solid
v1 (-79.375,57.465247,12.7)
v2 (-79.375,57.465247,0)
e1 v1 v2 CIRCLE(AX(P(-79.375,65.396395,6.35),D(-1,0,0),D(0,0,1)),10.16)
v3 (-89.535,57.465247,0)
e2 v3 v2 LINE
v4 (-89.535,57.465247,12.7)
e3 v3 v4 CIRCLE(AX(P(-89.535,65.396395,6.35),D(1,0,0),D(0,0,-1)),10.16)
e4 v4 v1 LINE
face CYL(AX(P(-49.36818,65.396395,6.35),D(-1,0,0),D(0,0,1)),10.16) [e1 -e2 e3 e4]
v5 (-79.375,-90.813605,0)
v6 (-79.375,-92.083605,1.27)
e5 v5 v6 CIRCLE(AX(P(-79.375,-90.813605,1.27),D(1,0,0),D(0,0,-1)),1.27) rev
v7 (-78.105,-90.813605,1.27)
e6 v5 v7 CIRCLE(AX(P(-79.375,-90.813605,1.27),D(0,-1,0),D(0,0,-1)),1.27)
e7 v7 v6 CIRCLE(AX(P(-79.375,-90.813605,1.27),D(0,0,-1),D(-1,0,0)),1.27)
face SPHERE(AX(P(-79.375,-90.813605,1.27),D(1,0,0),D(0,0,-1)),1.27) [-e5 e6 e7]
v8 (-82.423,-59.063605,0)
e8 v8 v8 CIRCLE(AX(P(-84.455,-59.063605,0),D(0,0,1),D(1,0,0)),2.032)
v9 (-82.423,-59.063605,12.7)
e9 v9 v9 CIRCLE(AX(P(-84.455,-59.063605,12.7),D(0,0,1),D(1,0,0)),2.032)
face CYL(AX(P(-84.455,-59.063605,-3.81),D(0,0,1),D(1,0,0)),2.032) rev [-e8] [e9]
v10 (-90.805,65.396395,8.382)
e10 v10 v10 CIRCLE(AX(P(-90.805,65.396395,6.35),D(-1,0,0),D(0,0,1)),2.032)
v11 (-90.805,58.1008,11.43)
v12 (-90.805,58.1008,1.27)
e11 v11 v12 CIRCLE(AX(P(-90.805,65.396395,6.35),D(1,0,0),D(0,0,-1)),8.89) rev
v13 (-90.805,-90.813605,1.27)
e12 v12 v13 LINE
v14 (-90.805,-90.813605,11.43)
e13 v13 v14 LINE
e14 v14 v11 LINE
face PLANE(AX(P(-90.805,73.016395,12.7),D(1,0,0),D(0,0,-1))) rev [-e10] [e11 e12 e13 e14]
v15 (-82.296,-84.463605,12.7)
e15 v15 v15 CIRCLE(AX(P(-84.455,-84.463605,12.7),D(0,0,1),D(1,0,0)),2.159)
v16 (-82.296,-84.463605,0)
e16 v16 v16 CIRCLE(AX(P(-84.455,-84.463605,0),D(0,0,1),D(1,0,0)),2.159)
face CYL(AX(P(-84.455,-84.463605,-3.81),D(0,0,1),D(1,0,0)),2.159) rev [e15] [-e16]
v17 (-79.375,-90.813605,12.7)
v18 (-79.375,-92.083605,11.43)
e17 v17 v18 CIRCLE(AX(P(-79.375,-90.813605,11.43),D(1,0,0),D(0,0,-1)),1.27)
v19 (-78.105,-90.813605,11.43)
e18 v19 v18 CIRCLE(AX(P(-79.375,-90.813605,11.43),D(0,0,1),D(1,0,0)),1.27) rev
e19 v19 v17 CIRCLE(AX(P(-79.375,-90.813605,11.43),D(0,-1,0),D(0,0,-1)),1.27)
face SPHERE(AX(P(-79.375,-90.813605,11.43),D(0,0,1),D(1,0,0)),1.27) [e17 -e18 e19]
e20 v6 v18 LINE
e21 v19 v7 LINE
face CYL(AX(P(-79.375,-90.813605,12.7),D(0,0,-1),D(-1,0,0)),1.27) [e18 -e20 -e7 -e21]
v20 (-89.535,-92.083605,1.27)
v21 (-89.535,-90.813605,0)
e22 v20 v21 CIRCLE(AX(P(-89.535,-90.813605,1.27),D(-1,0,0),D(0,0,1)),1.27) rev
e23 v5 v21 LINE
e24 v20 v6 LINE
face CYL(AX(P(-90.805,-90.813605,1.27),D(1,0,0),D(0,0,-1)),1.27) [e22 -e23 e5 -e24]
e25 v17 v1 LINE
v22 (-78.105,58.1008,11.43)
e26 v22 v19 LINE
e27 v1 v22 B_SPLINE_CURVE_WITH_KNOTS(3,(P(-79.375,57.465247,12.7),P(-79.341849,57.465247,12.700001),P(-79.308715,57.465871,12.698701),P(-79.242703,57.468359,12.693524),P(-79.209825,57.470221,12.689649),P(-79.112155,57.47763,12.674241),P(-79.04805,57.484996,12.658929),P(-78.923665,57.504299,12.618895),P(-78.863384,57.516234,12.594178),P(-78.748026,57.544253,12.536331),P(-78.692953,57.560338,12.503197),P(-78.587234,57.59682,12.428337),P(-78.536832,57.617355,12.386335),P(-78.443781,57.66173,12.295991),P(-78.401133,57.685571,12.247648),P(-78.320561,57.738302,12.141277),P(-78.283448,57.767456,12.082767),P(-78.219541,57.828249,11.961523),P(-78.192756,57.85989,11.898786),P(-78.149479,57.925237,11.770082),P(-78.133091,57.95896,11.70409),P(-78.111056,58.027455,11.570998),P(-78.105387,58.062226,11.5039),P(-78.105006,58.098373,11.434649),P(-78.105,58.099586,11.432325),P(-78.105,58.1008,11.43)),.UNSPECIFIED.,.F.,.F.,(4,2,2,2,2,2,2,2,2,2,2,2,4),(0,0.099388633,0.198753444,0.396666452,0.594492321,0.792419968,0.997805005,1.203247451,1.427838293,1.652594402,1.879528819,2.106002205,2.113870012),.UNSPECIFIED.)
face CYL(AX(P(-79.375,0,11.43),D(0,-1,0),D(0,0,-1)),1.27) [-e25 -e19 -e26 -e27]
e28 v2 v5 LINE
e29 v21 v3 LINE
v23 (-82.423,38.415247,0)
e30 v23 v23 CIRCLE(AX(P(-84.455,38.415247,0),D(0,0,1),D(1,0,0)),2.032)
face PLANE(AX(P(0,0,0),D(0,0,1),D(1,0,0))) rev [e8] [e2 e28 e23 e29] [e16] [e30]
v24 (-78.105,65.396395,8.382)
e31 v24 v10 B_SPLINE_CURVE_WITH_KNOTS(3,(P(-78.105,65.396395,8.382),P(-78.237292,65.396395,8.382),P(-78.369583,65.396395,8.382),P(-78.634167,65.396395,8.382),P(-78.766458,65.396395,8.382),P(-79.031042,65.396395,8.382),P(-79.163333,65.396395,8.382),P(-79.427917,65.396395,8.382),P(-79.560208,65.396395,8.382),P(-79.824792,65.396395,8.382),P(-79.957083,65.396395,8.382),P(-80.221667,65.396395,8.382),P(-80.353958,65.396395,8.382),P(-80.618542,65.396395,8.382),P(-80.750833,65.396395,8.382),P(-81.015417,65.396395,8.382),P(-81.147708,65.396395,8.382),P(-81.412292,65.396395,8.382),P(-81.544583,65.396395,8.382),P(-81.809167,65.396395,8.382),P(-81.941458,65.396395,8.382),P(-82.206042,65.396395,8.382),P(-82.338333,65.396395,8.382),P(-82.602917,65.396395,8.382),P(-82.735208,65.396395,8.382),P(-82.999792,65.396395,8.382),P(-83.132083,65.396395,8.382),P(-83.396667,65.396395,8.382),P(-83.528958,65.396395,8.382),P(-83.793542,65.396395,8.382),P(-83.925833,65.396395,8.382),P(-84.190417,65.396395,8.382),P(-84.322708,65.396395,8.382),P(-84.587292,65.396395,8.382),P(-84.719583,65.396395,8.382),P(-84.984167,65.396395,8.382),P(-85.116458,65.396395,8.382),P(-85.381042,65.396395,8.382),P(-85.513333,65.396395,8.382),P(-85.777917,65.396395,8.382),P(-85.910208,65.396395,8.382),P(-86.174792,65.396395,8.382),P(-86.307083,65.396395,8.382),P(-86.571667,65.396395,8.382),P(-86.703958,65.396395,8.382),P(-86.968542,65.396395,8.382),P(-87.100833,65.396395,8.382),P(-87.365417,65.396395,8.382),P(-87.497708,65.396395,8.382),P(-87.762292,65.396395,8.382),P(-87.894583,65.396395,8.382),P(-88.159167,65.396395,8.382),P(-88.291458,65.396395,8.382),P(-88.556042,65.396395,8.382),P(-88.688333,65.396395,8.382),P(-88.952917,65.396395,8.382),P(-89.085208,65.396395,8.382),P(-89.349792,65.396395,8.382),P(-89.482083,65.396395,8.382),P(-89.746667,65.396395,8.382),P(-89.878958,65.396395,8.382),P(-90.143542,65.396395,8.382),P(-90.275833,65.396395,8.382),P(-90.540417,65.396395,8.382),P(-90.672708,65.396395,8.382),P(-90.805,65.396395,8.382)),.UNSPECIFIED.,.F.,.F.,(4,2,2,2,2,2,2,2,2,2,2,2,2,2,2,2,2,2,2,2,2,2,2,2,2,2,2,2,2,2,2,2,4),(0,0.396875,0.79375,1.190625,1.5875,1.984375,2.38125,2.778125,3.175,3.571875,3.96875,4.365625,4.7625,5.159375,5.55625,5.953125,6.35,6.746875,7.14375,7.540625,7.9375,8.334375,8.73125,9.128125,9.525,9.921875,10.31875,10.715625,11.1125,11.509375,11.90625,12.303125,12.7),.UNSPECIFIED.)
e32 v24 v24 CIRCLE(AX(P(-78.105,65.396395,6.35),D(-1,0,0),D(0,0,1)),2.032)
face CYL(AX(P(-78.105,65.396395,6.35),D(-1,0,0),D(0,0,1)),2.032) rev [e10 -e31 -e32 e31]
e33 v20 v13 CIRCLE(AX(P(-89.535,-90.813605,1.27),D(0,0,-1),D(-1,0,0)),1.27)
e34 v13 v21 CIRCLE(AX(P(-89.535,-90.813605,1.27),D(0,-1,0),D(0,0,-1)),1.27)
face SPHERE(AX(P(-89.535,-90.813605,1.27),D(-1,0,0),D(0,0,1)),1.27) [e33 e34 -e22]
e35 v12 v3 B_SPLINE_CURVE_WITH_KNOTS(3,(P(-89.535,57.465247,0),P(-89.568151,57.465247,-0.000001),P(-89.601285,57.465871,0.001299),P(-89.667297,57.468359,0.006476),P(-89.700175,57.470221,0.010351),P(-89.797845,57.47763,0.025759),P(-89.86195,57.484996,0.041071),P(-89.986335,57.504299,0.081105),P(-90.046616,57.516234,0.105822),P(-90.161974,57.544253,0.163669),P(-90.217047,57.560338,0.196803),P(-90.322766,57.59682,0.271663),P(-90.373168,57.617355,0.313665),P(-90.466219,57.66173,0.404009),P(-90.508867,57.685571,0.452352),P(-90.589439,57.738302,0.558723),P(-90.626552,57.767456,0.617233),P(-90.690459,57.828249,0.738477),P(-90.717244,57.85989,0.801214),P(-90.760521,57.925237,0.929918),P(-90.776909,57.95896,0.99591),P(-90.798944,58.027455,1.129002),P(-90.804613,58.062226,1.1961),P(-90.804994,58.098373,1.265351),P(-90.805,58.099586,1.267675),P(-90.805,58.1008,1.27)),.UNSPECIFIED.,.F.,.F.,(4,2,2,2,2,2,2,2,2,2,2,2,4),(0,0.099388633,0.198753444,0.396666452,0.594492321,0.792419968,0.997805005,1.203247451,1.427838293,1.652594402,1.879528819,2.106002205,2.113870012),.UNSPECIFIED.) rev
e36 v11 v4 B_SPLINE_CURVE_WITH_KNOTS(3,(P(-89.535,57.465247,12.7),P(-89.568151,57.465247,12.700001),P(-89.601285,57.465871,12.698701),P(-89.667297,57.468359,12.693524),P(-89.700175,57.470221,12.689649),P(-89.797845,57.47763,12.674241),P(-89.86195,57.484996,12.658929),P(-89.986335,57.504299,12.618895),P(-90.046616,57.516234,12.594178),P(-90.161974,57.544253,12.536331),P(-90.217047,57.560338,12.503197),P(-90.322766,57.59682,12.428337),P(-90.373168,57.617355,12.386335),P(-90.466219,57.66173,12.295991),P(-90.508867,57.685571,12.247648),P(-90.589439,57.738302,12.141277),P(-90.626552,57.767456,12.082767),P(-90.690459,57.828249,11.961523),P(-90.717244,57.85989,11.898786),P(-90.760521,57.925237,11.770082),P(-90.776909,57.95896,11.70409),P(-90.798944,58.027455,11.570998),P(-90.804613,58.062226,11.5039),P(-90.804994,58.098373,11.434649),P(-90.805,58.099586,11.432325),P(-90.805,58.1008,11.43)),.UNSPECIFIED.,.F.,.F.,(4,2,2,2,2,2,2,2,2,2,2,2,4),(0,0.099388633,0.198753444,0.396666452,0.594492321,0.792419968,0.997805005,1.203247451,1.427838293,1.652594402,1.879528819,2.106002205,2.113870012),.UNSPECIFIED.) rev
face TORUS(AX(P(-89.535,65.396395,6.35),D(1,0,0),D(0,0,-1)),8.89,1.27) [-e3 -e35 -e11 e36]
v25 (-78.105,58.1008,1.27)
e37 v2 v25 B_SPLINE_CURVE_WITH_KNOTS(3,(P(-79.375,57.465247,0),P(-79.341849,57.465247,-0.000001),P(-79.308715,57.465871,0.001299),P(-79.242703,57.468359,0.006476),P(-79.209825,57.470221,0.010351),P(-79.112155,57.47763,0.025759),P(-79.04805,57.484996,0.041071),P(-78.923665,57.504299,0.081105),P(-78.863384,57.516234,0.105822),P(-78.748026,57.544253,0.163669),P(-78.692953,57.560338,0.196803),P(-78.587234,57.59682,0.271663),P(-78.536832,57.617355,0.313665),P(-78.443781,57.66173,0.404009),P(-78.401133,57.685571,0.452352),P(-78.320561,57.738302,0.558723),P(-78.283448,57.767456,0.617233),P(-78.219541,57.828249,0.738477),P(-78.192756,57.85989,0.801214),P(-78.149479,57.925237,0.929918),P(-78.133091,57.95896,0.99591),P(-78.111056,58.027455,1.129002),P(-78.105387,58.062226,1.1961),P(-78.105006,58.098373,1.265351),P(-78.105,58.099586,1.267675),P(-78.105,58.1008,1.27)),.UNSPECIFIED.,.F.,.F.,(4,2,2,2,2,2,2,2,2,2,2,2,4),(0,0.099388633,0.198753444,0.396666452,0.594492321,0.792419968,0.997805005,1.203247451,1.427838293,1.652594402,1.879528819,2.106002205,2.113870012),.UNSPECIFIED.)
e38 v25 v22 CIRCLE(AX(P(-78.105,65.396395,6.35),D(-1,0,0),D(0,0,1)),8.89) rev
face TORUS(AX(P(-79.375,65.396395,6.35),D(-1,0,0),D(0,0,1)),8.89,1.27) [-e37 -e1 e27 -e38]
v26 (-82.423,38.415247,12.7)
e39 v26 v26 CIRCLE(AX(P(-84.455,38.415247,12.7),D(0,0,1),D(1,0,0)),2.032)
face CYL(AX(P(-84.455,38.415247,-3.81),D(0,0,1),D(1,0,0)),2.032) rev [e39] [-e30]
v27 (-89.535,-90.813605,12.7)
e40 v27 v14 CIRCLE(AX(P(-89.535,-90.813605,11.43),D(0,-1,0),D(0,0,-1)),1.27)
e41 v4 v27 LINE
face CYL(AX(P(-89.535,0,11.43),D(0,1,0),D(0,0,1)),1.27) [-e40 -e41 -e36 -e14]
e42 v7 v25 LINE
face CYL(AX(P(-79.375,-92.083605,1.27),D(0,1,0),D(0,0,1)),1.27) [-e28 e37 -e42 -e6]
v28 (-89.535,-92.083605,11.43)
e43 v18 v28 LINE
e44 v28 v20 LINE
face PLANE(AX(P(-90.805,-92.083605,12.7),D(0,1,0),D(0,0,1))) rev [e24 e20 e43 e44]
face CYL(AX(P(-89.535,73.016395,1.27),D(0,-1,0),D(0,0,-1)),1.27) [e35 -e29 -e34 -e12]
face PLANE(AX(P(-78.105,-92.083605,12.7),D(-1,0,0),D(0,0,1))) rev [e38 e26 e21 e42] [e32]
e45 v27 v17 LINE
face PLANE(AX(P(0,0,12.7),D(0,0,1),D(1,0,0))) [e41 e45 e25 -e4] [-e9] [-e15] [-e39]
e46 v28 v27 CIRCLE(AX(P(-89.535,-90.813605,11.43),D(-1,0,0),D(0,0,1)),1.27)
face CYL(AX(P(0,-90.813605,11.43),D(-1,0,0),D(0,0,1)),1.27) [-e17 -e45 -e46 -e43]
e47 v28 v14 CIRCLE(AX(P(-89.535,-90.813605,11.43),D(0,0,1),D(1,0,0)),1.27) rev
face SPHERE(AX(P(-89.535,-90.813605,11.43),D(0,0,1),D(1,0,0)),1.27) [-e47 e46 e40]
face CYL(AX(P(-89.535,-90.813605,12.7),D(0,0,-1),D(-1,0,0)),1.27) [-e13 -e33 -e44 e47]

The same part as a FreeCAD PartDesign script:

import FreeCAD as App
import Part
import Sketcher
Q = App.Units.Quantity


def edges_at(feature, points):
    """Names of the edges that pass closest to the given points."""
    edges = feature.Shape.Edges
    near = lambda p: min(range(len(edges)), key=lambda i: edges[i].distToShape(Part.Vertex(*p))[0])
    return sorted({f"Edge{near(p) + 1}" for p in points})


def add_polygon(sketch, points):
    """Adds a closed chain of lines whose ends are joined by coincident constraints."""
    first, n = sketch.GeometryCount, len(points)
    for a, b in zip(points, points[1:] + points[:1]):
        sketch.addGeometry(Part.LineSegment(App.Vector(*a, 0), App.Vector(*b, 0)), False)
    for i in range(n):
        sketch.addConstraint(Sketcher.Constraint("Coincident", first + i, 2, first + (i + 1) % n, 1))

doc = App.newDocument("Part")
body = doc.addObject("PartDesign::Body", "Body")

# Sketch on XY plane
sketch1 = body.newObject("Sketcher::SketchObject", "Sketch")
sketch1.AttachmentSupport = (doc.getObject("XY_Plane"), [""])
sketch1.MapMode = "FlatFace"
add_polygon(sketch1, [(-91, 73), (-91, -92), (-78, -92), (-78, 73)])  # lines 0-3
sketch1.addConstraint([
    Sketcher.Constraint("Vertical", 0),
    Sketcher.Constraint("Horizontal", 1),
    Sketcher.Constraint("Vertical", 2),
    Sketcher.Constraint("Horizontal", 3),
    Sketcher.Constraint("DistanceX", 1, 1, 1, 2, Q("0.5 in")),
    Sketcher.Constraint("DistanceY", 0, 2, 0, 1, Q("6.5 in")),
    Sketcher.Constraint("DistanceX", 0, 2, -1, 1, Q("3.575 in")),
    Sketcher.Constraint("DistanceY", 0, 2, -1, 1, Q("92.083605 mm")),
])
pad1 = body.newObject("PartDesign::Pad", "Pad")
pad1.Profile = sketch1
pad1.Length = Q("0.5 in")

# Sketch on YZ plane
sketch2 = body.newObject("Sketcher::SketchObject", "Sketch001")
sketch2.AttachmentSupport = (doc.getObject("YZ_Plane"), [""])
sketch2.MapMode = "FlatFace"
sketch2.AttachmentOffset = App.Placement(App.Vector(0, 0, -3.575 * 25.4), App.Rotation())
sketch2.addGeometry(Part.Circle(App.Vector(65, 6, 0), App.Vector(0, 0, 1), 10), False)
sketch2.addConstraint([
    Sketcher.Constraint("Diameter", 0, Q("0.8 in")),
    Sketcher.Constraint("DistanceY", -1, 1, 0, 3, Q("0.25 in")),
    Sketcher.Constraint("DistanceX", -1, 1, 0, 3, Q("65.396395 mm")),
])
pad2 = body.newObject("PartDesign::Pad", "Pad001")
pad2.Profile = sketch2
pad2.Length = Q("0.5 in")

# Sketch on YZ plane
sketch3 = body.newObject("Sketcher::SketchObject", "Sketch002")
sketch3.AttachmentSupport = (doc.getObject("YZ_Plane"), [""])
sketch3.MapMode = "FlatFace"
sketch3.AttachmentOffset = App.Placement(App.Vector(0, 0, -3.575 * 25.4), App.Rotation())
sketch3.addGeometry(Part.Circle(App.Vector(65.4, 6.3, 0), App.Vector(0, 0, 1), 2), False)
sketch3.addConstraint([
    Sketcher.Constraint("Diameter", 0, Q("0.16 in")),
    Sketcher.Constraint("DistanceY", -1, 1, 0, 3, Q("0.25 in")),
    Sketcher.Constraint("DistanceX", -1, 1, 0, 3, Q("65.396395 mm")),
])
pocket1 = body.newObject("PartDesign::Pocket", "Pocket")
pocket1.Profile = sketch3
pocket1.Type = "ThroughAll"
pocket1.Reversed = True

# Sketch on XY plane
sketch4 = body.newObject("Sketcher::SketchObject", "Sketch003")
sketch4.AttachmentSupport = (doc.getObject("XY_Plane"), [""])
sketch4.MapMode = "FlatFace"
sketch4.AttachmentOffset = App.Placement(App.Vector(0, 0, 0.5 * 25.4), App.Rotation())
sketch4.addGeometry([
    Part.Circle(App.Vector(-84.5, -84.5, 0), App.Vector(0, 0, 1), 2.2),
    Part.Circle(App.Vector(84.5, -84.5, 0), App.Vector(0, 0, 1), 2.2),
], False)
sketch4.addConstraint([
    Sketcher.Constraint("Equal", 0, 1),
    Sketcher.Constraint("Symmetric", 0, 3, 1, 3, -2),
    Sketcher.Constraint("Diameter", 0, Q("0.17 in")),
    Sketcher.Constraint("DistanceX", 0, 3, 1, 3, Q("6.65 in")),
    Sketcher.Constraint("DistanceY", 0, 3, -1, 1, Q("84.463605 mm")),
])
pocket2 = body.newObject("PartDesign::Pocket", "Pocket001")
pocket2.Profile = sketch4
pocket2.Type = "ThroughAll"
doc.recompute()

fillet = body.newObject("PartDesign::Fillet", "Fillet")
fillet.Base = (pocket2, edges_at(pocket2, [
    (-90.805, -17.309, 0),
    (-90.805, -17.309, 12.7),
    (-90.805, 75.556, 6.35),
    (-78.105, 75.556, 6.35),
    (-84.455, -92.084, 12.7),
    (-78.105, -17.309, 0),
    (-84.455, -92.084, 0),
    (-90.805, -92.084, 6.35),
    (-78.105, -92.084, 6.35),
    (-78.105, -17.309, 12.7),
]))
fillet.Radius = Q("0.05 in")

# Sketch on XY plane
sketch5 = body.newObject("Sketcher::SketchObject", "Sketch004")
sketch5.AttachmentSupport = (doc.getObject("XY_Plane"), [""])
sketch5.MapMode = "FlatFace"
sketch5.AttachmentOffset = App.Placement(App.Vector(0, 0, 0.5 * 25.4), App.Rotation())
sketch5.addGeometry([
    Part.Circle(App.Vector(-84.5, -59.1, 0), App.Vector(0, 0, 1), 2),
    Part.Circle(App.Vector(-84.5, 38.4, 0), App.Vector(0, 0, 1), 2),
    Part.Circle(App.Vector(84.5, -59.1, 0), App.Vector(0, 0, 1), 2),
    Part.Circle(App.Vector(84.5, 38.4, 0), App.Vector(0, 0, 1), 2),
], False)
sketch5.addConstraint([
    Sketcher.Constraint("Equal", 0, 1),
    Sketcher.Constraint("Equal", 1, 2),
    Sketcher.Constraint("Equal", 2, 3),
    Sketcher.Constraint("Symmetric", 0, 3, 2, 3, -2),
    Sketcher.Constraint("Symmetric", 1, 3, 3, 3, -2),
    Sketcher.Constraint("Vertical", 0, 3, 1, 3),
    Sketcher.Constraint("Diameter", 0, Q("0.16 in")),
    Sketcher.Constraint("DistanceX", 0, 3, 2, 3, Q("6.65 in")),
    Sketcher.Constraint("DistanceY", 0, 3, -1, 1, Q("59.063605 mm")),
    Sketcher.Constraint("DistanceY", -1, 1, 1, 3, Q("38.415247 mm")),
])
pocket3 = body.newObject("PartDesign::Pocket", "Pocket002")
pocket3.Profile = sketch5
pocket3.Type = "ThroughAll"

doc.recompute()
